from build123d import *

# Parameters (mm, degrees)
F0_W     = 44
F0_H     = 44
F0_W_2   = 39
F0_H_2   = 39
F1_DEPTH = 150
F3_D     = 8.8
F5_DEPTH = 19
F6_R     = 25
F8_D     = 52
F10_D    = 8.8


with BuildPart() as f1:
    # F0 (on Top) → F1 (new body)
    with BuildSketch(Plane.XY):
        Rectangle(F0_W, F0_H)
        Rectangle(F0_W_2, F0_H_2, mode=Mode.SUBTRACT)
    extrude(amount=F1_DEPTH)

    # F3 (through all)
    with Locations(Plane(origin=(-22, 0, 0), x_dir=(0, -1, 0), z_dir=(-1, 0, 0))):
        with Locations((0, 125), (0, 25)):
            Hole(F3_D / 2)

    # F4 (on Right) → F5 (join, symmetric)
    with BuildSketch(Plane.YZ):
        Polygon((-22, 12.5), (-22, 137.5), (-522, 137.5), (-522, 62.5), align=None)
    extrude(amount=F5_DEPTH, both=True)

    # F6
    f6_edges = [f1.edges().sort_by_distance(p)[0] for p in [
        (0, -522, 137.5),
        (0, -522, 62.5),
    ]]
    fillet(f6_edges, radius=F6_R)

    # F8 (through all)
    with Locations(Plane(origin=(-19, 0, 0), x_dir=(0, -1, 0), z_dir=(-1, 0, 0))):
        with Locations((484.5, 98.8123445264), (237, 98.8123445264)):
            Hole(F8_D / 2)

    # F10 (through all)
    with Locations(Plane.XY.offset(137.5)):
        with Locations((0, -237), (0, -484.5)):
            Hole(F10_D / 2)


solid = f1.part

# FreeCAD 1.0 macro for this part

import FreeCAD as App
import Part
import Sketcher


def edges_at(feature, points):
    """Names of the edges that pass closest to the given points."""
    edges = feature.Shape.Edges
    near = lambda p: min(range(len(edges)), key=lambda i: edges[i].distToShape(Part.Vertex(*p))[0])
    return sorted({f"Edge{near(p) + 1}" for p in points})

doc = App.newDocument("Part")
body = doc.addObject("PartDesign::Body", "Body")

# Sketch on XY plane
sketch1 = body.newObject("Sketcher::SketchObject", "Sketch")
sketch1.AttachmentSupport = (doc.getObject("XY_Plane"), [""])
sketch1.MapMode = "FlatFace"
sketch1.addGeometry([
    Part.LineSegment(App.Vector(-22, 22, 0), App.Vector(-22, -22, 0)),  # 0
    Part.LineSegment(App.Vector(-22, -22, 0), App.Vector(22, -22, 0)),  # 1
    Part.LineSegment(App.Vector(22, -22, 0), App.Vector(22, 22, 0)),  # 2
    Part.LineSegment(App.Vector(22, 22, 0), App.Vector(-22, 22, 0)),  # 3
    Part.LineSegment(App.Vector(19.5, -19.5, 0), App.Vector(-19.5, -19.5, 0)),  # 4
    Part.LineSegment(App.Vector(-19.5, -19.5, 0), App.Vector(-19.5, 19.5, 0)),  # 5
    Part.LineSegment(App.Vector(-19.5, 19.5, 0), App.Vector(19.5, 19.5, 0)),  # 6
    Part.LineSegment(App.Vector(19.5, 19.5, 0), App.Vector(19.5, -19.5, 0)),  # 7
], False)
sketch1.addConstraint([
    Sketcher.Constraint("Coincident", 0, 2, 1, 1),
    Sketcher.Constraint("Coincident", 1, 2, 2, 1),
    Sketcher.Constraint("Coincident", 2, 2, 3, 1),
    Sketcher.Constraint("Coincident", 3, 2, 0, 1),
    Sketcher.Constraint("Coincident", 4, 2, 5, 1),
    Sketcher.Constraint("Coincident", 5, 2, 6, 1),
    Sketcher.Constraint("Coincident", 6, 2, 7, 1),
    Sketcher.Constraint("Coincident", 7, 2, 4, 1),
    Sketcher.Constraint("Vertical", 0),
    Sketcher.Constraint("Horizontal", 1),
    Sketcher.Constraint("Vertical", 2),
    Sketcher.Constraint("Horizontal", 3),
    Sketcher.Constraint("Horizontal", 4),
    Sketcher.Constraint("Vertical", 5),
    Sketcher.Constraint("Horizontal", 6),
    Sketcher.Constraint("Vertical", 7),
    Sketcher.Constraint("Symmetric", 0, 2, 2, 2, -1, 1),
    Sketcher.Constraint("Symmetric", 4, 2, 6, 2, -1, 1),
    Sketcher.Constraint("Equal", 3, 0),
    Sketcher.Constraint("Equal", 6, 5),
    Sketcher.Constraint("DistanceX", 1, 1, 1, 2, 44.0),
    Sketcher.Constraint("DistanceX", 4, 2, 4, 1, 39.0),
])
pad1 = body.newObject("PartDesign::Pad", "Pad")
pad1.Profile = sketch1
pad1.Length = 150

# Sketch on YZ plane
sketch2 = body.newObject("Sketcher::SketchObject", "Sketch001")
sketch2.AttachmentSupport = (doc.getObject("YZ_Plane"), [""])
sketch2.MapMode = "FlatFace"
sketch2.AttachmentOffset = App.Placement(App.Vector(0, 0, -22), App.Rotation())
sketch2.addGeometry([
    Part.Circle(App.Vector(0, 125, 0), App.Vector(0, 0, 1), 4.4),
    Part.Circle(App.Vector(0, 25, 0), App.Vector(0, 0, 1), 4.4),
], False)
sketch2.addConstraint([
    Sketcher.Constraint("Equal", 0, 1),
    Sketcher.Constraint("PointOnObject", 0, 3, -2),
    Sketcher.Constraint("PointOnObject", 1, 3, -2),
    Sketcher.Constraint("Diameter", 0, 8.8),
    Sketcher.Constraint("DistanceY", -1, 1, 0, 3, 125.0),
    Sketcher.Constraint("DistanceY", -1, 1, 1, 3, 25.0),
])
doc.recompute()
hole = body.newObject("PartDesign::Hole", "Hole")
hole.Profile = sketch2
hole.ThreadType = "None"
hole.Diameter = 8.8
hole.DepthType = "ThroughAll"
hole.Reversed = True

# Sketch on YZ plane
sketch3 = body.newObject("Sketcher::SketchObject", "Sketch002")
sketch3.AttachmentSupport = (doc.getObject("YZ_Plane"), [""])
sketch3.MapMode = "FlatFace"
sketch3.addGeometry([
    Part.LineSegment(App.Vector(-22, 12.5, 0), App.Vector(-22, 137.5, 0)),
    Part.LineSegment(App.Vector(-22, 137.5, 0), App.Vector(-522, 137.5, 0)),
    Part.LineSegment(App.Vector(-522, 137.5, 0), App.Vector(-522, 62.5, 0)),
    Part.LineSegment(App.Vector(-522, 62.5, 0), App.Vector(-22, 12.5, 0)),
], False)
sketch3.addConstraint([
    Sketcher.Constraint("Coincident", 0, 2, 1, 1),
    Sketcher.Constraint("Coincident", 1, 2, 2, 1),
    Sketcher.Constraint("Coincident", 2, 2, 3, 1),
    Sketcher.Constraint("Coincident", 3, 2, 0, 1),
    Sketcher.Constraint("Vertical", 0),
    Sketcher.Constraint("Horizontal", 1),
    Sketcher.Constraint("Vertical", 2),
    Sketcher.Constraint("DistanceX", 1, 2, 1, 1, 500.0),
    Sketcher.Constraint("DistanceY", 0, 1, 0, 2, 125.0),
    Sketcher.Constraint("DistanceY", 2, 2, 2, 1, 75.0),
    Sketcher.Constraint("DistanceX", 0, 2, -1, 1, 22.0),
    Sketcher.Constraint("DistanceY", -1, 1, 0, 2, 137.5),
])
pad2 = body.newObject("PartDesign::Pad", "Pad001")
pad2.Profile = sketch3
pad2.Length = 38
pad2.Midplane = True
doc.recompute()

fillet = body.newObject("PartDesign::Fillet", "Fillet")
fillet.Base = (pad2, edges_at(pad2, [(0, -522, 137.5), (0, -522, 62.5)]))
fillet.Radius = 25

# Sketch on YZ plane
sketch4 = body.newObject("Sketcher::SketchObject", "Sketch003")
sketch4.AttachmentSupport = (doc.getObject("YZ_Plane"), [""])
sketch4.MapMode = "FlatFace"
sketch4.AttachmentOffset = App.Placement(App.Vector(0, 0, -19), App.Rotation())
sketch4.addGeometry([
    Part.Circle(App.Vector(-484.5, 98.812345, 0), App.Vector(0, 0, 1), 26),
    Part.Circle(App.Vector(-237, 98.812345, 0), App.Vector(0, 0, 1), 26),
], False)
sketch4.addConstraint([
    Sketcher.Constraint("Equal", 0, 1),
    Sketcher.Constraint("Horizontal", 0, 3, 1, 3),
    Sketcher.Constraint("Diameter", 0, 52.0),
    Sketcher.Constraint("DistanceX", 1, 3, -1, 1, 237.0),
    Sketcher.Constraint("DistanceX", 0, 3, -1, 1, 484.5),
    Sketcher.Constraint("DistanceY", -1, 1, 0, 3, 98.812345),
])
doc.recompute()
hole2 = body.newObject("PartDesign::Hole", "Hole001")
hole2.Profile = sketch4
hole2.ThreadType = "None"
hole2.Diameter = 52
hole2.DepthType = "ThroughAll"
hole2.Reversed = True

# Sketch on XY plane
sketch5 = body.newObject("Sketcher::SketchObject", "Sketch004")
sketch5.AttachmentSupport = (doc.getObject("XY_Plane"), [""])
sketch5.MapMode = "FlatFace"
sketch5.AttachmentOffset = App.Placement(App.Vector(0, 0, 137.5), App.Rotation())
sketch5.addGeometry([
    Part.Circle(App.Vector(0, -237, 0), App.Vector(0, 0, 1), 4.4),
    Part.Circle(App.Vector(0, -484.5, 0), App.Vector(0, 0, 1), 4.4),
], False)
sketch5.addConstraint([
    Sketcher.Constraint("Equal", 0, 1),
    Sketcher.Constraint("PointOnObject", 0, 3, -2),
    Sketcher.Constraint("PointOnObject", 1, 3, -2),
    Sketcher.Constraint("Diameter", 0, 8.8),
    Sketcher.Constraint("DistanceY", 0, 3, -1, 1, 237.0),
    Sketcher.Constraint("DistanceY", 1, 3, -1, 1, 484.5),
])
doc.recompute()
hole3 = body.newObject("PartDesign::Hole", "Hole002")
hole3.Profile = sketch5
hole3.ThreadType = "None"
hole3.Diameter = 8.8
hole3.DepthType = "ThroughAll"

doc.recompute()
